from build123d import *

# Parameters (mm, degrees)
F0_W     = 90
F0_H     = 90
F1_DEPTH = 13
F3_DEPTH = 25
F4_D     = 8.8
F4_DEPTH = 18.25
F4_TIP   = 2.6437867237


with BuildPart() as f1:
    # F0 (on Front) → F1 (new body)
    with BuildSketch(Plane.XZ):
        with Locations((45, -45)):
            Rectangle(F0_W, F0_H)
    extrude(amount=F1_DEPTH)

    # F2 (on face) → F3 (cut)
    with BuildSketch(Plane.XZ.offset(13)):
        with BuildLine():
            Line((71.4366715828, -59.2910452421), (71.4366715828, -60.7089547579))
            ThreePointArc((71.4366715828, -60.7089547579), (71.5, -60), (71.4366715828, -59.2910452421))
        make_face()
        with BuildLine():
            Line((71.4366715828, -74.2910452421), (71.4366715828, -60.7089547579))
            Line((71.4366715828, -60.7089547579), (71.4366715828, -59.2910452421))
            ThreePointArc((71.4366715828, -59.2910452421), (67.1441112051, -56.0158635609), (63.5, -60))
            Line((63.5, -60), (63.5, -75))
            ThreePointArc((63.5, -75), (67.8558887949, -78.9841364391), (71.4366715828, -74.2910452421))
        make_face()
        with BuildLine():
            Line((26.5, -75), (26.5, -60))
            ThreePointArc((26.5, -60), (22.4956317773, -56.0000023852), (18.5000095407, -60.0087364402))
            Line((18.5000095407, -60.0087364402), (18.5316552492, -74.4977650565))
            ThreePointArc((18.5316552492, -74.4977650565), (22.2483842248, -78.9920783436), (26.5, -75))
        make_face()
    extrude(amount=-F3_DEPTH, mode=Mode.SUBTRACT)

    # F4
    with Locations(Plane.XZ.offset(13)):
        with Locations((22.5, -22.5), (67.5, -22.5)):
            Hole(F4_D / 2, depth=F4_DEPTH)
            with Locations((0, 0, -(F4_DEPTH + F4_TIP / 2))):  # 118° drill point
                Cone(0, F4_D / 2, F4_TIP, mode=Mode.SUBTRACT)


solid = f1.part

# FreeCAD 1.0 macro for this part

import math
import FreeCAD as App
import Part
import Sketcher

V = App.Vector
Q = App.Units.Quantity


def add_polygon(sketch, points):
    """Adds a closed chain of lines whose ends are joined by coincident constraints."""
    first, n = sketch.GeometryCount, len(points)
    for a, b in zip(points, points[1:] + points[:1]):
        sketch.addGeometry(Part.LineSegment(App.Vector(*a, 0), App.Vector(*b, 0)), False)
    for i in range(n):
        sketch.addConstraint(Sketcher.Constraint("Coincident", first + i, 2, first + (i + 1) % n, 1))

doc = App.newDocument("Part")
body = doc.addObject("PartDesign::Body", "Body")

sketch1 = body.newObject("Sketcher::SketchObject", "Sketch")
sketch1.AttachmentSupport = (doc.getObject("XZ_Plane"), [""])
sketch1.MapMode = "FlatFace"
add_polygon(sketch1, [(0, 0), (0, -90), (90, -90), (90, 0)])
sketch1.addConstraint(Sketcher.Constraint("Vertical", 0))
sketch1.addConstraint(Sketcher.Constraint("Horizontal", 1))
sketch1.addConstraint(Sketcher.Constraint("Vertical", 2))
sketch1.addConstraint(Sketcher.Constraint("Horizontal", 3))
sketch1.addConstraint(Sketcher.Constraint("Coincident", 3, 2, -1, 1))
sketch1.addConstraint(Sketcher.Constraint("Equal", 3, 0))
sketch1.addConstraint(Sketcher.Constraint("DistanceX", 1, 1, 1, 2, Q("90 mm")))
pad1 = body.newObject("PartDesign::Pad", "Pad")
pad1.Profile = sketch1
pad1.Length = 13

sketch2 = body.newObject("Sketcher::SketchObject", "Sketch001")
sketch2.AttachmentSupport = (doc.getObject("XZ_Plane"), [""])
sketch2.MapMode = "FlatFace"
sketch2.AttachmentOffset = App.Placement(V(0, 0, 13), App.Rotation())
sketch2.addGeometry(Part.ArcOfCircle(Part.Circle(V(67.5, -60, 0), V(0, 0, 1), 4), math.radians(-10), math.radians(10)), False)
sketch2.addGeometry(Part.ArcOfCircle(Part.Circle(V(67.5, -60, 0), V(0, 0, 1), 4), math.radians(10), math.radians(180)), False)
sketch2.addGeometry(Part.LineSegment(V(63.5, -60, 0), V(63.5, -75, 0)), False)
sketch2.addGeometry(Part.ArcOfCircle(Part.Circle(V(67.5, -75, 0), V(0, 0, 1), 4), math.radians(180), math.radians(370)), False)
sketch2.addGeometry(Part.LineSegment(V(71.4, -74.3, 0), V(71.4, -60.7, 0)), False)
sketch2.addGeometry(Part.LineSegment(V(26.5, -75, 0), V(26.5, -60, 0)), False)
sketch2.addGeometry(Part.ArcOfCircle(Part.Circle(V(22.5, -60, 0), V(0, 0, 1), 4), math.radians(0), math.radians(180)), False)
sketch2.addGeometry(Part.LineSegment(V(18.5, -60, 0), V(18.5, -74.5, 0)), False)
sketch2.addGeometry(Part.ArcOfCircle(Part.Circle(V(22.5, -75, 0), V(0, 0, 1), 4), math.radians(173), math.radians(360)), False)
sketch2.addConstraint(Sketcher.Constraint("Tangent", 0, 2, 1, 1))
sketch2.addConstraint(Sketcher.Constraint("Tangent", 1, 2, 2, 1))
sketch2.addConstraint(Sketcher.Constraint("Tangent", 2, 2, 3, 1))
sketch2.addConstraint(Sketcher.Constraint("Coincident", 3, 2, 4, 1))
sketch2.addConstraint(Sketcher.Constraint("Coincident", 4, 2, 0, 1))
sketch2.addConstraint(Sketcher.Constraint("Tangent", 5, 2, 6, 1))
sketch2.addConstraint(Sketcher.Constraint("Tangent", 6, 2, 7, 1))
sketch2.addConstraint(Sketcher.Constraint("Coincident", 7, 2, 8, 1))
sketch2.addConstraint(Sketcher.Constraint("Tangent", 8, 2, 5, 1))
sketch2.addConstraint(Sketcher.Constraint("Vertical", 2))
sketch2.addConstraint(Sketcher.Constraint("Vertical", 4))
sketch2.addConstraint(Sketcher.Constraint("Vertical", 5))
sketch2.addConstraint(Sketcher.Constraint("Equal", 0, 1))
sketch2.addConstraint(Sketcher.Constraint("Equal", 1, 3))
sketch2.addConstraint(Sketcher.Constraint("Equal", 3, 6))
sketch2.addConstraint(Sketcher.Constraint("Equal", 6, 8))
sketch2.addConstraint(Sketcher.Constraint("Horizontal", 1, 3, 6, 3))
sketch2.addConstraint(Sketcher.Constraint("Horizontal", 3, 3, 8, 3))
sketch2.addConstraint(Sketcher.Constraint("Vertical", 0, 2, 3, 2))
sketch2.addConstraint(Sketcher.Constraint("Radius", 0, Q("4 mm")))
sketch2.addConstraint(Sketcher.Constraint("DistanceY", 2, 2, 2, 1, Q("15 mm")))
sketch2.addConstraint(Sketcher.Constraint("DistanceY", 0, 3, -1, 1, Q("60 mm")))
sketch2.addConstraint(Sketcher.Constraint("DistanceX", 6, 3, 1, 3, Q("45 mm")))
sketch2.addConstraint(Sketcher.Constraint("DistanceX", -1, 1, 0, 3, Q("67.5 mm")))
sketch2.addConstraint(Sketcher.Constraint("DistanceY", 4, 1, 4, 2, Q("13.58209 mm")))
sketch2.addConstraint(Sketcher.Constraint("DistanceY", 7, 2, 6, 2, Q("14.489029 mm")))
pocket1 = body.newObject("PartDesign::Pocket", "Pocket")
pocket1.Profile = sketch2
pocket1.Length = 25

sketch3 = body.newObject("Sketcher::SketchObject", "Sketch002")
sketch3.AttachmentSupport = (doc.getObject("XZ_Plane"), [""])
sketch3.MapMode = "FlatFace"
sketch3.AttachmentOffset = App.Placement(V(0, 0, 13), App.Rotation())
sketch3.addGeometry(Part.Circle(V(22.5, -22.5, 0), V(0, 0, 1), 4.4), False)
sketch3.addGeometry(Part.Circle(V(67.5, -22.5, 0), V(0, 0, 1), 4.4), False)
sketch3.addConstraint(Sketcher.Constraint("Equal", 0, 1))
sketch3.addConstraint(Sketcher.Constraint("Horizontal", 0, 3, 1, 3))
sketch3.addConstraint(Sketcher.Constraint("Diameter", 0, Q("8.8 mm")))
sketch3.addConstraint(Sketcher.Constraint("DistanceX", 0, 3, 1, 3, Q("45 mm")))
sketch3.addConstraint(Sketcher.Constraint("DistanceX", -1, 1, 0, 3, Q("22.5 mm")))
sketch3.addConstraint(Sketcher.Constraint("DistanceY", 0, 3, -1, 1, Q("22.5 mm")))
doc.recompute()
hole = body.newObject("PartDesign::Hole", "Hole")
hole.Profile = sketch3
hole.ThreadType = "None"
hole.Diameter = 8.8
hole.DepthType = "Dimension"
hole.Depth = 18.25
hole.DrillPoint = "Angled"
hole.DrillPointAngle = 118

doc.recompute()
